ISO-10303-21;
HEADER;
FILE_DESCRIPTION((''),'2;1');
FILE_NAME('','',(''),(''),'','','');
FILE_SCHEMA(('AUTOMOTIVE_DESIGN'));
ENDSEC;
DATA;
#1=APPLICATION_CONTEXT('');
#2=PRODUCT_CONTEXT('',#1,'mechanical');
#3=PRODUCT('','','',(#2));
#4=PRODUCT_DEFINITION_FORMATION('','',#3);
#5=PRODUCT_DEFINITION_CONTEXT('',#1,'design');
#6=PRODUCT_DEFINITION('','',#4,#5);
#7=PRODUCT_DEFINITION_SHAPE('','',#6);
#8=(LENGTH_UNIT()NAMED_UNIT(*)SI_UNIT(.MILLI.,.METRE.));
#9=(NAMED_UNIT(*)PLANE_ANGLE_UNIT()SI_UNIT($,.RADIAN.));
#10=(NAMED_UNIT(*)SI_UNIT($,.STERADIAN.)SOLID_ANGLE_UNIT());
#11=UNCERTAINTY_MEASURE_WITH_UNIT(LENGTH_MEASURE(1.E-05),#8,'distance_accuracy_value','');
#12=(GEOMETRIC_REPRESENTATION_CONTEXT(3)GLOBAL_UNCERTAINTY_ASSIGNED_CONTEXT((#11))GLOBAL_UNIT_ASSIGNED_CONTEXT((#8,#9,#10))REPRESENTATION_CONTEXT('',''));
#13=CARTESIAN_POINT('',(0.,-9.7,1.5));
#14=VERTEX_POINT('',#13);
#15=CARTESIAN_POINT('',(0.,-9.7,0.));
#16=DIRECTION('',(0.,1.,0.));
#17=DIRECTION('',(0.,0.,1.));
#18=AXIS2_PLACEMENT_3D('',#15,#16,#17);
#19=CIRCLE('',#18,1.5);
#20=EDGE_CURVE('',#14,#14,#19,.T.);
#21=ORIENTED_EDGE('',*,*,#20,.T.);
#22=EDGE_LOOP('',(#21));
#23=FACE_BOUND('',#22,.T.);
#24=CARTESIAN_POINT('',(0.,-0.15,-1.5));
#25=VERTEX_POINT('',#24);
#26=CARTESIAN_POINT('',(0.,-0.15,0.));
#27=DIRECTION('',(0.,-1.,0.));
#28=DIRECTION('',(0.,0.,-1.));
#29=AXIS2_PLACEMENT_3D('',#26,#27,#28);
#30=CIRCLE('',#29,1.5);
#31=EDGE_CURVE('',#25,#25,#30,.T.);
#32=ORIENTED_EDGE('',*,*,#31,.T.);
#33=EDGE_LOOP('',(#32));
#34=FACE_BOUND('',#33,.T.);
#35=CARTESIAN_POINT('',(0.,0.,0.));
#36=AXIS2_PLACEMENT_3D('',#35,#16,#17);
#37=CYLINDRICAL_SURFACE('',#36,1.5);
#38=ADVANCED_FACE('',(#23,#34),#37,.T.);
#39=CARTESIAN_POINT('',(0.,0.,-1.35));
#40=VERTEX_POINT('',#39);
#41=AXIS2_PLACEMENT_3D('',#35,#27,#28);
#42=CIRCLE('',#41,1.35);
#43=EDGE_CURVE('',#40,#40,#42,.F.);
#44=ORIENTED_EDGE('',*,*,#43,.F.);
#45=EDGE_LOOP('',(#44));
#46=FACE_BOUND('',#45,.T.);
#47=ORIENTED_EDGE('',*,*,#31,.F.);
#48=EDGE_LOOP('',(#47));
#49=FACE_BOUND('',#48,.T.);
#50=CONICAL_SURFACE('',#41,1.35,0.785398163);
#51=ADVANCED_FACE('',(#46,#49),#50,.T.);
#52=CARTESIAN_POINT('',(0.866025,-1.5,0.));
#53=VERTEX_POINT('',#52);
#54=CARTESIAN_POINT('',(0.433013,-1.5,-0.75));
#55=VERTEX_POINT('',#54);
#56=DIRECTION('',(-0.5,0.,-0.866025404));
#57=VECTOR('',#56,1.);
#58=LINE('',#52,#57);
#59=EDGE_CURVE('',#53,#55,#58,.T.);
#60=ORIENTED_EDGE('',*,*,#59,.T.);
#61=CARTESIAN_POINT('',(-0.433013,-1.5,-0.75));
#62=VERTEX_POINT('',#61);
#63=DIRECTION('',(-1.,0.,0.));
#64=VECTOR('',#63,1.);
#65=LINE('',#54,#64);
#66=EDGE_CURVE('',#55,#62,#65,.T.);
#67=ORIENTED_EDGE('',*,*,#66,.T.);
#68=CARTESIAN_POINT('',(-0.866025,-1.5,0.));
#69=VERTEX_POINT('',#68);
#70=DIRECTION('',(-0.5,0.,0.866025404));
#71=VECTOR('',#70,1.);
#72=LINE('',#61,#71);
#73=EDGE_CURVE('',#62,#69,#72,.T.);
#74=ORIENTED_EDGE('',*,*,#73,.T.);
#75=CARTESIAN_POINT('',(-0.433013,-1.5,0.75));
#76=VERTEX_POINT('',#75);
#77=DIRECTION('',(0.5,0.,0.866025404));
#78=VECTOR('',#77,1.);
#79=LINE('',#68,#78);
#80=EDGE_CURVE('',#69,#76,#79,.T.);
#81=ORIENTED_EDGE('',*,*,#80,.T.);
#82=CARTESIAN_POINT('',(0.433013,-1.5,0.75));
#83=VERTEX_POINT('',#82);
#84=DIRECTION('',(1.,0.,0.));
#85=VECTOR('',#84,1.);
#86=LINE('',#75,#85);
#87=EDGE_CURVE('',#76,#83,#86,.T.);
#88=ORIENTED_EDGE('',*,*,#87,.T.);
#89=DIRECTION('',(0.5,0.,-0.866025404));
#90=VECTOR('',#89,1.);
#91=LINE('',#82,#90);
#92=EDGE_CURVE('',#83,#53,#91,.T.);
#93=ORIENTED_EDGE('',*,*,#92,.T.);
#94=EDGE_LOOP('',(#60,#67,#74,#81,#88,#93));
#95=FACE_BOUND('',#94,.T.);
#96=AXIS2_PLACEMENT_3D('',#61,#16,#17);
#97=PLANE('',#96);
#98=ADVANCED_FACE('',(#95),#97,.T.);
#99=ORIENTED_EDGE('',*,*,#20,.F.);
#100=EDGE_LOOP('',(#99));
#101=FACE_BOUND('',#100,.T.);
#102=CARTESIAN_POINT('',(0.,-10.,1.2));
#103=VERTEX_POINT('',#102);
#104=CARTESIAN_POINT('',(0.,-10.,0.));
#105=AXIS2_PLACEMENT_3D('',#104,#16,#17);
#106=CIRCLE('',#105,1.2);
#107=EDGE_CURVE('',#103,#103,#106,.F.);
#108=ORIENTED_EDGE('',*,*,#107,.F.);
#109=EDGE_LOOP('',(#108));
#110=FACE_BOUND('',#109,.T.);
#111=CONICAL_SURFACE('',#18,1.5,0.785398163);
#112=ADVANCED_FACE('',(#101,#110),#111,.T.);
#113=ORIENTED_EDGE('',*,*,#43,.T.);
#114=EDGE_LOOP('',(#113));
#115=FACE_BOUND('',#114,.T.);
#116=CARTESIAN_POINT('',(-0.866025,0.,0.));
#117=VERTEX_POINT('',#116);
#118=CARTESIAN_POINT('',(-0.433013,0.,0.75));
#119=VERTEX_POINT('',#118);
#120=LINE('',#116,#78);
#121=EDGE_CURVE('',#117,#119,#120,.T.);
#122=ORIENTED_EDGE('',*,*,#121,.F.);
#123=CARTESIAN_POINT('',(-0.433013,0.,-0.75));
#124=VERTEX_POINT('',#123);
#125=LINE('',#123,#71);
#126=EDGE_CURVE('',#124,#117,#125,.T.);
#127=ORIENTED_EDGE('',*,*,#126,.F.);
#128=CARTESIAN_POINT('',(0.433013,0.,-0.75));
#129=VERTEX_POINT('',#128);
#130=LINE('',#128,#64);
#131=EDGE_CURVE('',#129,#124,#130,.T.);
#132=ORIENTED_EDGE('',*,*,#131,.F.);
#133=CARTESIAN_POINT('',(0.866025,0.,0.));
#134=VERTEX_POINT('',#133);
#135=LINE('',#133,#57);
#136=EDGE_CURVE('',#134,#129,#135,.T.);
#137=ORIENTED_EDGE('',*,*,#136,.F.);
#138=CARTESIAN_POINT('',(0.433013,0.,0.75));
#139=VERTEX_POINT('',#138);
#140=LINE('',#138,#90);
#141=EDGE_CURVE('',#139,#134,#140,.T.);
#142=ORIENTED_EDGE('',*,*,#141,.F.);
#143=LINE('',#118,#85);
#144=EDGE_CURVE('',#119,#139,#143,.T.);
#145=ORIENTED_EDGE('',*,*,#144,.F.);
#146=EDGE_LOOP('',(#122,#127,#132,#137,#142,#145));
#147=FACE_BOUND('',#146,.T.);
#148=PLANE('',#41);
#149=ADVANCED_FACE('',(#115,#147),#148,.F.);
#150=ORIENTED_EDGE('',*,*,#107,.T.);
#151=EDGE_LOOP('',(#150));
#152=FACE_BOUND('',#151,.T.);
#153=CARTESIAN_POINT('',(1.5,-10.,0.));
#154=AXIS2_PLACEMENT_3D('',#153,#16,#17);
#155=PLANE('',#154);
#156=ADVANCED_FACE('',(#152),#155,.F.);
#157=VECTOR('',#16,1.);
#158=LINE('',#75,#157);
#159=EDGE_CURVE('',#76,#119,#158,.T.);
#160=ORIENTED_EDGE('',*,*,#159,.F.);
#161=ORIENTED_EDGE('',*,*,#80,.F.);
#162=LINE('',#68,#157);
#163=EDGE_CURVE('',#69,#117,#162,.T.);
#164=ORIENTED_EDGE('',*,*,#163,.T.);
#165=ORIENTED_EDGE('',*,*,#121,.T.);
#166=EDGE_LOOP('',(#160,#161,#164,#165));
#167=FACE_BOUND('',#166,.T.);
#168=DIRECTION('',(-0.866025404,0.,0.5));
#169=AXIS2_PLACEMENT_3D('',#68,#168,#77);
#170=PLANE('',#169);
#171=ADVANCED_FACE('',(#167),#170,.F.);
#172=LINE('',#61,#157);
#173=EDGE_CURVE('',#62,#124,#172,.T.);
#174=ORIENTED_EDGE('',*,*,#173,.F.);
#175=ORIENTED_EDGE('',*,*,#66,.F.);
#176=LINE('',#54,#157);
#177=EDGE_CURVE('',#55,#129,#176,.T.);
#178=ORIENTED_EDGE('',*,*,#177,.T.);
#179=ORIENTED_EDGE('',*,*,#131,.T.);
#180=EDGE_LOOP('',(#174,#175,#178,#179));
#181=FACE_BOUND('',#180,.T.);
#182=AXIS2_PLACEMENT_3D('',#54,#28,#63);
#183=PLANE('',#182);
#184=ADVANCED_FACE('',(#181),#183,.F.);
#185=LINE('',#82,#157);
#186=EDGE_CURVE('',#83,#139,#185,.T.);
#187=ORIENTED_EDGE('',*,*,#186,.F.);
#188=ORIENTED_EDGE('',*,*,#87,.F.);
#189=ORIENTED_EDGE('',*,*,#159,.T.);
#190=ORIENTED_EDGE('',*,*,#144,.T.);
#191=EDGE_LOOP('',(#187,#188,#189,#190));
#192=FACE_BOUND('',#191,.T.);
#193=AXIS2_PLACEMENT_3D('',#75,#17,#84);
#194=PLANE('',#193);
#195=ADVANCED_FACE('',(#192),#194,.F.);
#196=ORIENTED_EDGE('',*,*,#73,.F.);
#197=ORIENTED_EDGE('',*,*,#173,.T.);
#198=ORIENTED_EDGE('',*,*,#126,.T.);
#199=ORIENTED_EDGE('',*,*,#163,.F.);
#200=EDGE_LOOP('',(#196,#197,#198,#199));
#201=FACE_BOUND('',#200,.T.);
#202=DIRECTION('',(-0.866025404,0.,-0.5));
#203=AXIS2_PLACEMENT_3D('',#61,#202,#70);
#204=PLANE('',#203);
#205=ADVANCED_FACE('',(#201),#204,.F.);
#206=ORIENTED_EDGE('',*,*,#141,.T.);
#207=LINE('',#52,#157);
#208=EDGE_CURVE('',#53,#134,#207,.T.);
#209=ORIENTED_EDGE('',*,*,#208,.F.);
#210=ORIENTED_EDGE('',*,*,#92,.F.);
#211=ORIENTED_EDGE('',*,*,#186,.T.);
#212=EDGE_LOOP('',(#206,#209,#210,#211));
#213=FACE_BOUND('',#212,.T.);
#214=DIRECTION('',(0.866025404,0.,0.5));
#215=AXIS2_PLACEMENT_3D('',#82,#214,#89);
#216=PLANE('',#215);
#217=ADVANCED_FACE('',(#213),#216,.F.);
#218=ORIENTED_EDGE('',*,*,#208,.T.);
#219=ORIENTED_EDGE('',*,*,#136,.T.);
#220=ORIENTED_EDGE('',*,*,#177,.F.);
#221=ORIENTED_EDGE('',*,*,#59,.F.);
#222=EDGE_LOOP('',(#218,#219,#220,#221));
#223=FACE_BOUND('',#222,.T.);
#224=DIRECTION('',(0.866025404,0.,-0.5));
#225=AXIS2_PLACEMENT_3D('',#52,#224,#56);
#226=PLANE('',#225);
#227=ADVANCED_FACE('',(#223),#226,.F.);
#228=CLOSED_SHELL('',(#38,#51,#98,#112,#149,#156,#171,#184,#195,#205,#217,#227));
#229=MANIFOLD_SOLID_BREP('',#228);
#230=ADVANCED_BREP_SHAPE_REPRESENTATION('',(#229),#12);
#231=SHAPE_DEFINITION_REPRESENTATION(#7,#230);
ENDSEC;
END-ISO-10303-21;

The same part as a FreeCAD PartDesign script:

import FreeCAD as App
import Part
import Sketcher
Q = App.Units.Quantity


def edges_at(feature, points):
    """Names of the edges that pass closest to the given points."""
    edges = feature.Shape.Edges
    near = lambda p: min(range(len(edges)), key=lambda i: edges[i].distToShape(Part.Vertex(*p))[0])
    return sorted({f"Edge{near(p) + 1}" for p in points})


def add_polygon(sketch, points):
    """Adds a closed chain of lines whose ends are joined by coincident constraints."""
    first, n = sketch.GeometryCount, len(points)
    for a, b in zip(points, points[1:] + points[:1]):
        sketch.addGeometry(Part.LineSegment(App.Vector(*a, 0), App.Vector(*b, 0)), False)
    for i in range(n):
        sketch.addConstraint(Sketcher.Constraint("Coincident", first + i, 2, first + (i + 1) % n, 1))

doc = App.newDocument("Part")
body = doc.addObject("PartDesign::Body", "Body")

sketch1 = doc.addObject("Sketcher::SketchObject", "Sketch")
body.addObject(sketch1)
sketch1.AttachmentSupport = (doc.XY_Plane, [""])
sketch1.MapMode = "FlatFace"
add_polygon(sketch1, [(0, 0), (0, -10), (1.5, -10), (1.5, 0)])
sketch1.addConstraint([
    Sketcher.Constraint("Vertical", 0),
    Sketcher.Constraint("Horizontal", 1),
    Sketcher.Constraint("Vertical", 2),
    Sketcher.Constraint("Horizontal", 3),
    Sketcher.Constraint("Coincident", 3, 2, -1, 1),
    Sketcher.Constraint("DistanceY", 0, 2, 0, 1, Q("10 mm")),
    Sketcher.Constraint("DistanceX", 1, 1, 1, 2, Q("1.5 mm")),
])
revolution = doc.addObject("PartDesign::Revolution", "Revolution")
body.addObject(revolution)
revolution.Profile = sketch1
revolution.ReferenceAxis = (sketch1, ["V_Axis"])
revolution.Angle = 360

sketch2 = doc.addObject("Sketcher::SketchObject", "Sketch001")
body.addObject(sketch2)
sketch2.AttachmentSupport = (doc.XZ_Plane, [""])
sketch2.MapMode = "FlatFace"
add_polygon(sketch2, [(-0.4, -0.8), (-0.9, 0), (-0.4, 0.8), (0.4, 0.8), (0.9, 0), (0.4, -0.8)])
sketch2.addConstraint([
    Sketcher.Constraint("Horizontal", 2),
    Sketcher.Constraint("Horizontal", 5),
    Sketcher.Constraint("Symmetric", 0, 2, 3, 2, -1, 1),
    Sketcher.Constraint("Symmetric", 1, 2, 4, 2, -1, 1),
    Sketcher.Constraint("PointOnObject", 0, 2, -1),
    Sketcher.Constraint("Parallel", 0, 3),
    Sketcher.Constraint("Vertical", 2, 2, 4, 2),
    Sketcher.Constraint("Angle", 0, Q("120 deg")),
    Sketcher.Constraint("DistanceY", 4, 2, 2, 2, Q("1.5 mm")),
    Sketcher.Constraint("DistanceX", 2, 1, 2, 2, Q("0.866025 mm")),
])
pocket1 = doc.addObject("PartDesign::Pocket", "Pocket")
body.addObject(pocket1)
pocket1.Profile = sketch2
pocket1.Length = 1.5
pocket1.Reversed = True
doc.recompute()

chamfer = doc.addObject("PartDesign::Chamfer", "Chamfer")
body.addObject(chamfer)
chamfer.Base = (pocket1, edges_at(pocket1, [(0, -10, -1.5)]))
chamfer.Size = 0.3
doc.recompute()

chamfer2 = doc.addObject("PartDesign::Chamfer", "Chamfer001")
body.addObject(chamfer2)
chamfer2.Base = (chamfer, edges_at(chamfer, [(0, 0, -1.5)]))
chamfer2.Size = 0.15

doc.recompute()
